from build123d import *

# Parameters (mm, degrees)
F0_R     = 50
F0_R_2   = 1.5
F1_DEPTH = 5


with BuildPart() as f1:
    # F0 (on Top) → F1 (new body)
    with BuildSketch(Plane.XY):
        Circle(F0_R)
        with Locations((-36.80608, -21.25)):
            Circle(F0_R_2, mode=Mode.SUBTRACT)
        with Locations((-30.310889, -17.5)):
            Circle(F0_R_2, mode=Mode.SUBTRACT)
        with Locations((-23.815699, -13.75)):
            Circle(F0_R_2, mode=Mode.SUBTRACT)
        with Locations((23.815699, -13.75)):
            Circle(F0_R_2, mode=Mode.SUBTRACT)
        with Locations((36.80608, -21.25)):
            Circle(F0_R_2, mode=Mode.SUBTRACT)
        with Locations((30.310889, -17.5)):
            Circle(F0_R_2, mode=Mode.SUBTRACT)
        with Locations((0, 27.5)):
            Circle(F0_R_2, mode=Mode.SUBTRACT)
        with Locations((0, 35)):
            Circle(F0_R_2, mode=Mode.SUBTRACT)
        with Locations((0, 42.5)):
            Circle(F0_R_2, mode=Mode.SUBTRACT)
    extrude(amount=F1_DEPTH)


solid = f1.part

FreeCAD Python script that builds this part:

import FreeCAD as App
import Part
import Sketcher
from FreeCAD import Vector
Q = App.Units.Quantity

doc = App.newDocument("Part")
body = doc.addObject("PartDesign::Body", "Body")

# Sketch on XY plane
sketch1 = doc.addObject("Sketcher::SketchObject", "Sketch")
body.addObject(sketch1)
sketch1.AttachmentSupport = (doc.XY_Plane, [""])
sketch1.MapMode = "FlatFace"
sketch1.addGeometry(Part.Circle(Vector(0, 0, 0), Vector(0, 0, 1), 50), False)
sketch1.addGeometry(Part.Circle(Vector(-36.8, -21.2, 0), Vector(0, 0, 1), 1.5), False)
sketch1.addGeometry(Part.Circle(Vector(-30.3, -17.5, 0), Vector(0, 0, 1), 1.5), False)
sketch1.addGeometry(Part.Circle(Vector(-23.8, -13.8, 0), Vector(0, 0, 1), 1.5), False)
sketch1.addGeometry(Part.Circle(Vector(36.8, -21.2, 0), Vector(0, 0, 1), 1.5), False)
sketch1.addGeometry(Part.Circle(Vector(30.3, -17.5, 0), Vector(0, 0, 1), 1.5), False)
sketch1.addGeometry(Part.Circle(Vector(23.8, -13.8, 0), Vector(0, 0, 1), 1.5), False)
sketch1.addGeometry(Part.Circle(Vector(0, 27.5, 0), Vector(0, 0, 1), 1.5), False)
sketch1.addGeometry(Part.Circle(Vector(0, 35, 0), Vector(0, 0, 1), 1.5), False)
sketch1.addGeometry(Part.Circle(Vector(0, 42.5, 0), Vector(0, 0, 1), 1.5), False)
sketch1.addConstraint(Sketcher.Constraint("Coincident", 0, 3, -1, 1))
sketch1.addConstraint(Sketcher.Constraint("Equal", 1, 2))
sketch1.addConstraint(Sketcher.Constraint("Equal", 2, 3))
sketch1.addConstraint(Sketcher.Constraint("Equal", 3, 4))
sketch1.addConstraint(Sketcher.Constraint("Equal", 4, 5))
sketch1.addConstraint(Sketcher.Constraint("Equal", 5, 6))
sketch1.addConstraint(Sketcher.Constraint("Equal", 6, 7))
sketch1.addConstraint(Sketcher.Constraint("Equal", 7, 8))
sketch1.addConstraint(Sketcher.Constraint("Equal", 8, 9))
sketch1.addConstraint(Sketcher.Constraint("Symmetric", 1, 3, 4, 3, -2))
sketch1.addConstraint(Sketcher.Constraint("Symmetric", 2, 3, 5, 3, -2))
sketch1.addConstraint(Sketcher.Constraint("Symmetric", 3, 3, 6, 3, -2))
sketch1.addConstraint(Sketcher.Constraint("PointOnObject", 7, 3, -2))
sketch1.addConstraint(Sketcher.Constraint("PointOnObject", 8, 3, -2))
sketch1.addConstraint(Sketcher.Constraint("PointOnObject", 9, 3, -2))
sketch1.addConstraint(Sketcher.Constraint("Diameter", 0, Q("100 mm")))
sketch1.addConstraint(Sketcher.Constraint("Diameter", 1, Q("3 mm")))
sketch1.addConstraint(Sketcher.Constraint("DistanceY", -1, 1, 8, 3, Q("35 mm")))
sketch1.addConstraint(Sketcher.Constraint("DistanceY", 2, 3, 7, 3, Q("45 mm")))
sketch1.addConstraint(Sketcher.Constraint("DistanceY", 7, 3, 9, 3, Q("15 mm")))
sketch1.addConstraint(Sketcher.Constraint("DistanceY", 2, 3, -1, 1, Q("17.5 mm")))
sketch1.addConstraint(Sketcher.Constraint("DistanceY", 1, 3, 3, 3, Q("7.5 mm")))
sketch1.addConstraint(Sketcher.Constraint("DistanceY", 1, 3, -1, 1, Q("21.25 mm")))
sketch1.addConstraint(Sketcher.Constraint("DistanceX", 3, 3, -1, 1, Q("23.815699 mm")))
sketch1.addConstraint(Sketcher.Constraint("DistanceX", 1, 3, -1, 1, Q("36.80608 mm")))
sketch1.addConstraint(Sketcher.Constraint("DistanceX", 2, 3, -1, 1, Q("30.310889 mm")))
pad1 = doc.addObject("PartDesign::Pad", "Pad")
body.addObject(pad1)
pad1.Profile = sketch1
pad1.Length = 5

doc.recompute()
